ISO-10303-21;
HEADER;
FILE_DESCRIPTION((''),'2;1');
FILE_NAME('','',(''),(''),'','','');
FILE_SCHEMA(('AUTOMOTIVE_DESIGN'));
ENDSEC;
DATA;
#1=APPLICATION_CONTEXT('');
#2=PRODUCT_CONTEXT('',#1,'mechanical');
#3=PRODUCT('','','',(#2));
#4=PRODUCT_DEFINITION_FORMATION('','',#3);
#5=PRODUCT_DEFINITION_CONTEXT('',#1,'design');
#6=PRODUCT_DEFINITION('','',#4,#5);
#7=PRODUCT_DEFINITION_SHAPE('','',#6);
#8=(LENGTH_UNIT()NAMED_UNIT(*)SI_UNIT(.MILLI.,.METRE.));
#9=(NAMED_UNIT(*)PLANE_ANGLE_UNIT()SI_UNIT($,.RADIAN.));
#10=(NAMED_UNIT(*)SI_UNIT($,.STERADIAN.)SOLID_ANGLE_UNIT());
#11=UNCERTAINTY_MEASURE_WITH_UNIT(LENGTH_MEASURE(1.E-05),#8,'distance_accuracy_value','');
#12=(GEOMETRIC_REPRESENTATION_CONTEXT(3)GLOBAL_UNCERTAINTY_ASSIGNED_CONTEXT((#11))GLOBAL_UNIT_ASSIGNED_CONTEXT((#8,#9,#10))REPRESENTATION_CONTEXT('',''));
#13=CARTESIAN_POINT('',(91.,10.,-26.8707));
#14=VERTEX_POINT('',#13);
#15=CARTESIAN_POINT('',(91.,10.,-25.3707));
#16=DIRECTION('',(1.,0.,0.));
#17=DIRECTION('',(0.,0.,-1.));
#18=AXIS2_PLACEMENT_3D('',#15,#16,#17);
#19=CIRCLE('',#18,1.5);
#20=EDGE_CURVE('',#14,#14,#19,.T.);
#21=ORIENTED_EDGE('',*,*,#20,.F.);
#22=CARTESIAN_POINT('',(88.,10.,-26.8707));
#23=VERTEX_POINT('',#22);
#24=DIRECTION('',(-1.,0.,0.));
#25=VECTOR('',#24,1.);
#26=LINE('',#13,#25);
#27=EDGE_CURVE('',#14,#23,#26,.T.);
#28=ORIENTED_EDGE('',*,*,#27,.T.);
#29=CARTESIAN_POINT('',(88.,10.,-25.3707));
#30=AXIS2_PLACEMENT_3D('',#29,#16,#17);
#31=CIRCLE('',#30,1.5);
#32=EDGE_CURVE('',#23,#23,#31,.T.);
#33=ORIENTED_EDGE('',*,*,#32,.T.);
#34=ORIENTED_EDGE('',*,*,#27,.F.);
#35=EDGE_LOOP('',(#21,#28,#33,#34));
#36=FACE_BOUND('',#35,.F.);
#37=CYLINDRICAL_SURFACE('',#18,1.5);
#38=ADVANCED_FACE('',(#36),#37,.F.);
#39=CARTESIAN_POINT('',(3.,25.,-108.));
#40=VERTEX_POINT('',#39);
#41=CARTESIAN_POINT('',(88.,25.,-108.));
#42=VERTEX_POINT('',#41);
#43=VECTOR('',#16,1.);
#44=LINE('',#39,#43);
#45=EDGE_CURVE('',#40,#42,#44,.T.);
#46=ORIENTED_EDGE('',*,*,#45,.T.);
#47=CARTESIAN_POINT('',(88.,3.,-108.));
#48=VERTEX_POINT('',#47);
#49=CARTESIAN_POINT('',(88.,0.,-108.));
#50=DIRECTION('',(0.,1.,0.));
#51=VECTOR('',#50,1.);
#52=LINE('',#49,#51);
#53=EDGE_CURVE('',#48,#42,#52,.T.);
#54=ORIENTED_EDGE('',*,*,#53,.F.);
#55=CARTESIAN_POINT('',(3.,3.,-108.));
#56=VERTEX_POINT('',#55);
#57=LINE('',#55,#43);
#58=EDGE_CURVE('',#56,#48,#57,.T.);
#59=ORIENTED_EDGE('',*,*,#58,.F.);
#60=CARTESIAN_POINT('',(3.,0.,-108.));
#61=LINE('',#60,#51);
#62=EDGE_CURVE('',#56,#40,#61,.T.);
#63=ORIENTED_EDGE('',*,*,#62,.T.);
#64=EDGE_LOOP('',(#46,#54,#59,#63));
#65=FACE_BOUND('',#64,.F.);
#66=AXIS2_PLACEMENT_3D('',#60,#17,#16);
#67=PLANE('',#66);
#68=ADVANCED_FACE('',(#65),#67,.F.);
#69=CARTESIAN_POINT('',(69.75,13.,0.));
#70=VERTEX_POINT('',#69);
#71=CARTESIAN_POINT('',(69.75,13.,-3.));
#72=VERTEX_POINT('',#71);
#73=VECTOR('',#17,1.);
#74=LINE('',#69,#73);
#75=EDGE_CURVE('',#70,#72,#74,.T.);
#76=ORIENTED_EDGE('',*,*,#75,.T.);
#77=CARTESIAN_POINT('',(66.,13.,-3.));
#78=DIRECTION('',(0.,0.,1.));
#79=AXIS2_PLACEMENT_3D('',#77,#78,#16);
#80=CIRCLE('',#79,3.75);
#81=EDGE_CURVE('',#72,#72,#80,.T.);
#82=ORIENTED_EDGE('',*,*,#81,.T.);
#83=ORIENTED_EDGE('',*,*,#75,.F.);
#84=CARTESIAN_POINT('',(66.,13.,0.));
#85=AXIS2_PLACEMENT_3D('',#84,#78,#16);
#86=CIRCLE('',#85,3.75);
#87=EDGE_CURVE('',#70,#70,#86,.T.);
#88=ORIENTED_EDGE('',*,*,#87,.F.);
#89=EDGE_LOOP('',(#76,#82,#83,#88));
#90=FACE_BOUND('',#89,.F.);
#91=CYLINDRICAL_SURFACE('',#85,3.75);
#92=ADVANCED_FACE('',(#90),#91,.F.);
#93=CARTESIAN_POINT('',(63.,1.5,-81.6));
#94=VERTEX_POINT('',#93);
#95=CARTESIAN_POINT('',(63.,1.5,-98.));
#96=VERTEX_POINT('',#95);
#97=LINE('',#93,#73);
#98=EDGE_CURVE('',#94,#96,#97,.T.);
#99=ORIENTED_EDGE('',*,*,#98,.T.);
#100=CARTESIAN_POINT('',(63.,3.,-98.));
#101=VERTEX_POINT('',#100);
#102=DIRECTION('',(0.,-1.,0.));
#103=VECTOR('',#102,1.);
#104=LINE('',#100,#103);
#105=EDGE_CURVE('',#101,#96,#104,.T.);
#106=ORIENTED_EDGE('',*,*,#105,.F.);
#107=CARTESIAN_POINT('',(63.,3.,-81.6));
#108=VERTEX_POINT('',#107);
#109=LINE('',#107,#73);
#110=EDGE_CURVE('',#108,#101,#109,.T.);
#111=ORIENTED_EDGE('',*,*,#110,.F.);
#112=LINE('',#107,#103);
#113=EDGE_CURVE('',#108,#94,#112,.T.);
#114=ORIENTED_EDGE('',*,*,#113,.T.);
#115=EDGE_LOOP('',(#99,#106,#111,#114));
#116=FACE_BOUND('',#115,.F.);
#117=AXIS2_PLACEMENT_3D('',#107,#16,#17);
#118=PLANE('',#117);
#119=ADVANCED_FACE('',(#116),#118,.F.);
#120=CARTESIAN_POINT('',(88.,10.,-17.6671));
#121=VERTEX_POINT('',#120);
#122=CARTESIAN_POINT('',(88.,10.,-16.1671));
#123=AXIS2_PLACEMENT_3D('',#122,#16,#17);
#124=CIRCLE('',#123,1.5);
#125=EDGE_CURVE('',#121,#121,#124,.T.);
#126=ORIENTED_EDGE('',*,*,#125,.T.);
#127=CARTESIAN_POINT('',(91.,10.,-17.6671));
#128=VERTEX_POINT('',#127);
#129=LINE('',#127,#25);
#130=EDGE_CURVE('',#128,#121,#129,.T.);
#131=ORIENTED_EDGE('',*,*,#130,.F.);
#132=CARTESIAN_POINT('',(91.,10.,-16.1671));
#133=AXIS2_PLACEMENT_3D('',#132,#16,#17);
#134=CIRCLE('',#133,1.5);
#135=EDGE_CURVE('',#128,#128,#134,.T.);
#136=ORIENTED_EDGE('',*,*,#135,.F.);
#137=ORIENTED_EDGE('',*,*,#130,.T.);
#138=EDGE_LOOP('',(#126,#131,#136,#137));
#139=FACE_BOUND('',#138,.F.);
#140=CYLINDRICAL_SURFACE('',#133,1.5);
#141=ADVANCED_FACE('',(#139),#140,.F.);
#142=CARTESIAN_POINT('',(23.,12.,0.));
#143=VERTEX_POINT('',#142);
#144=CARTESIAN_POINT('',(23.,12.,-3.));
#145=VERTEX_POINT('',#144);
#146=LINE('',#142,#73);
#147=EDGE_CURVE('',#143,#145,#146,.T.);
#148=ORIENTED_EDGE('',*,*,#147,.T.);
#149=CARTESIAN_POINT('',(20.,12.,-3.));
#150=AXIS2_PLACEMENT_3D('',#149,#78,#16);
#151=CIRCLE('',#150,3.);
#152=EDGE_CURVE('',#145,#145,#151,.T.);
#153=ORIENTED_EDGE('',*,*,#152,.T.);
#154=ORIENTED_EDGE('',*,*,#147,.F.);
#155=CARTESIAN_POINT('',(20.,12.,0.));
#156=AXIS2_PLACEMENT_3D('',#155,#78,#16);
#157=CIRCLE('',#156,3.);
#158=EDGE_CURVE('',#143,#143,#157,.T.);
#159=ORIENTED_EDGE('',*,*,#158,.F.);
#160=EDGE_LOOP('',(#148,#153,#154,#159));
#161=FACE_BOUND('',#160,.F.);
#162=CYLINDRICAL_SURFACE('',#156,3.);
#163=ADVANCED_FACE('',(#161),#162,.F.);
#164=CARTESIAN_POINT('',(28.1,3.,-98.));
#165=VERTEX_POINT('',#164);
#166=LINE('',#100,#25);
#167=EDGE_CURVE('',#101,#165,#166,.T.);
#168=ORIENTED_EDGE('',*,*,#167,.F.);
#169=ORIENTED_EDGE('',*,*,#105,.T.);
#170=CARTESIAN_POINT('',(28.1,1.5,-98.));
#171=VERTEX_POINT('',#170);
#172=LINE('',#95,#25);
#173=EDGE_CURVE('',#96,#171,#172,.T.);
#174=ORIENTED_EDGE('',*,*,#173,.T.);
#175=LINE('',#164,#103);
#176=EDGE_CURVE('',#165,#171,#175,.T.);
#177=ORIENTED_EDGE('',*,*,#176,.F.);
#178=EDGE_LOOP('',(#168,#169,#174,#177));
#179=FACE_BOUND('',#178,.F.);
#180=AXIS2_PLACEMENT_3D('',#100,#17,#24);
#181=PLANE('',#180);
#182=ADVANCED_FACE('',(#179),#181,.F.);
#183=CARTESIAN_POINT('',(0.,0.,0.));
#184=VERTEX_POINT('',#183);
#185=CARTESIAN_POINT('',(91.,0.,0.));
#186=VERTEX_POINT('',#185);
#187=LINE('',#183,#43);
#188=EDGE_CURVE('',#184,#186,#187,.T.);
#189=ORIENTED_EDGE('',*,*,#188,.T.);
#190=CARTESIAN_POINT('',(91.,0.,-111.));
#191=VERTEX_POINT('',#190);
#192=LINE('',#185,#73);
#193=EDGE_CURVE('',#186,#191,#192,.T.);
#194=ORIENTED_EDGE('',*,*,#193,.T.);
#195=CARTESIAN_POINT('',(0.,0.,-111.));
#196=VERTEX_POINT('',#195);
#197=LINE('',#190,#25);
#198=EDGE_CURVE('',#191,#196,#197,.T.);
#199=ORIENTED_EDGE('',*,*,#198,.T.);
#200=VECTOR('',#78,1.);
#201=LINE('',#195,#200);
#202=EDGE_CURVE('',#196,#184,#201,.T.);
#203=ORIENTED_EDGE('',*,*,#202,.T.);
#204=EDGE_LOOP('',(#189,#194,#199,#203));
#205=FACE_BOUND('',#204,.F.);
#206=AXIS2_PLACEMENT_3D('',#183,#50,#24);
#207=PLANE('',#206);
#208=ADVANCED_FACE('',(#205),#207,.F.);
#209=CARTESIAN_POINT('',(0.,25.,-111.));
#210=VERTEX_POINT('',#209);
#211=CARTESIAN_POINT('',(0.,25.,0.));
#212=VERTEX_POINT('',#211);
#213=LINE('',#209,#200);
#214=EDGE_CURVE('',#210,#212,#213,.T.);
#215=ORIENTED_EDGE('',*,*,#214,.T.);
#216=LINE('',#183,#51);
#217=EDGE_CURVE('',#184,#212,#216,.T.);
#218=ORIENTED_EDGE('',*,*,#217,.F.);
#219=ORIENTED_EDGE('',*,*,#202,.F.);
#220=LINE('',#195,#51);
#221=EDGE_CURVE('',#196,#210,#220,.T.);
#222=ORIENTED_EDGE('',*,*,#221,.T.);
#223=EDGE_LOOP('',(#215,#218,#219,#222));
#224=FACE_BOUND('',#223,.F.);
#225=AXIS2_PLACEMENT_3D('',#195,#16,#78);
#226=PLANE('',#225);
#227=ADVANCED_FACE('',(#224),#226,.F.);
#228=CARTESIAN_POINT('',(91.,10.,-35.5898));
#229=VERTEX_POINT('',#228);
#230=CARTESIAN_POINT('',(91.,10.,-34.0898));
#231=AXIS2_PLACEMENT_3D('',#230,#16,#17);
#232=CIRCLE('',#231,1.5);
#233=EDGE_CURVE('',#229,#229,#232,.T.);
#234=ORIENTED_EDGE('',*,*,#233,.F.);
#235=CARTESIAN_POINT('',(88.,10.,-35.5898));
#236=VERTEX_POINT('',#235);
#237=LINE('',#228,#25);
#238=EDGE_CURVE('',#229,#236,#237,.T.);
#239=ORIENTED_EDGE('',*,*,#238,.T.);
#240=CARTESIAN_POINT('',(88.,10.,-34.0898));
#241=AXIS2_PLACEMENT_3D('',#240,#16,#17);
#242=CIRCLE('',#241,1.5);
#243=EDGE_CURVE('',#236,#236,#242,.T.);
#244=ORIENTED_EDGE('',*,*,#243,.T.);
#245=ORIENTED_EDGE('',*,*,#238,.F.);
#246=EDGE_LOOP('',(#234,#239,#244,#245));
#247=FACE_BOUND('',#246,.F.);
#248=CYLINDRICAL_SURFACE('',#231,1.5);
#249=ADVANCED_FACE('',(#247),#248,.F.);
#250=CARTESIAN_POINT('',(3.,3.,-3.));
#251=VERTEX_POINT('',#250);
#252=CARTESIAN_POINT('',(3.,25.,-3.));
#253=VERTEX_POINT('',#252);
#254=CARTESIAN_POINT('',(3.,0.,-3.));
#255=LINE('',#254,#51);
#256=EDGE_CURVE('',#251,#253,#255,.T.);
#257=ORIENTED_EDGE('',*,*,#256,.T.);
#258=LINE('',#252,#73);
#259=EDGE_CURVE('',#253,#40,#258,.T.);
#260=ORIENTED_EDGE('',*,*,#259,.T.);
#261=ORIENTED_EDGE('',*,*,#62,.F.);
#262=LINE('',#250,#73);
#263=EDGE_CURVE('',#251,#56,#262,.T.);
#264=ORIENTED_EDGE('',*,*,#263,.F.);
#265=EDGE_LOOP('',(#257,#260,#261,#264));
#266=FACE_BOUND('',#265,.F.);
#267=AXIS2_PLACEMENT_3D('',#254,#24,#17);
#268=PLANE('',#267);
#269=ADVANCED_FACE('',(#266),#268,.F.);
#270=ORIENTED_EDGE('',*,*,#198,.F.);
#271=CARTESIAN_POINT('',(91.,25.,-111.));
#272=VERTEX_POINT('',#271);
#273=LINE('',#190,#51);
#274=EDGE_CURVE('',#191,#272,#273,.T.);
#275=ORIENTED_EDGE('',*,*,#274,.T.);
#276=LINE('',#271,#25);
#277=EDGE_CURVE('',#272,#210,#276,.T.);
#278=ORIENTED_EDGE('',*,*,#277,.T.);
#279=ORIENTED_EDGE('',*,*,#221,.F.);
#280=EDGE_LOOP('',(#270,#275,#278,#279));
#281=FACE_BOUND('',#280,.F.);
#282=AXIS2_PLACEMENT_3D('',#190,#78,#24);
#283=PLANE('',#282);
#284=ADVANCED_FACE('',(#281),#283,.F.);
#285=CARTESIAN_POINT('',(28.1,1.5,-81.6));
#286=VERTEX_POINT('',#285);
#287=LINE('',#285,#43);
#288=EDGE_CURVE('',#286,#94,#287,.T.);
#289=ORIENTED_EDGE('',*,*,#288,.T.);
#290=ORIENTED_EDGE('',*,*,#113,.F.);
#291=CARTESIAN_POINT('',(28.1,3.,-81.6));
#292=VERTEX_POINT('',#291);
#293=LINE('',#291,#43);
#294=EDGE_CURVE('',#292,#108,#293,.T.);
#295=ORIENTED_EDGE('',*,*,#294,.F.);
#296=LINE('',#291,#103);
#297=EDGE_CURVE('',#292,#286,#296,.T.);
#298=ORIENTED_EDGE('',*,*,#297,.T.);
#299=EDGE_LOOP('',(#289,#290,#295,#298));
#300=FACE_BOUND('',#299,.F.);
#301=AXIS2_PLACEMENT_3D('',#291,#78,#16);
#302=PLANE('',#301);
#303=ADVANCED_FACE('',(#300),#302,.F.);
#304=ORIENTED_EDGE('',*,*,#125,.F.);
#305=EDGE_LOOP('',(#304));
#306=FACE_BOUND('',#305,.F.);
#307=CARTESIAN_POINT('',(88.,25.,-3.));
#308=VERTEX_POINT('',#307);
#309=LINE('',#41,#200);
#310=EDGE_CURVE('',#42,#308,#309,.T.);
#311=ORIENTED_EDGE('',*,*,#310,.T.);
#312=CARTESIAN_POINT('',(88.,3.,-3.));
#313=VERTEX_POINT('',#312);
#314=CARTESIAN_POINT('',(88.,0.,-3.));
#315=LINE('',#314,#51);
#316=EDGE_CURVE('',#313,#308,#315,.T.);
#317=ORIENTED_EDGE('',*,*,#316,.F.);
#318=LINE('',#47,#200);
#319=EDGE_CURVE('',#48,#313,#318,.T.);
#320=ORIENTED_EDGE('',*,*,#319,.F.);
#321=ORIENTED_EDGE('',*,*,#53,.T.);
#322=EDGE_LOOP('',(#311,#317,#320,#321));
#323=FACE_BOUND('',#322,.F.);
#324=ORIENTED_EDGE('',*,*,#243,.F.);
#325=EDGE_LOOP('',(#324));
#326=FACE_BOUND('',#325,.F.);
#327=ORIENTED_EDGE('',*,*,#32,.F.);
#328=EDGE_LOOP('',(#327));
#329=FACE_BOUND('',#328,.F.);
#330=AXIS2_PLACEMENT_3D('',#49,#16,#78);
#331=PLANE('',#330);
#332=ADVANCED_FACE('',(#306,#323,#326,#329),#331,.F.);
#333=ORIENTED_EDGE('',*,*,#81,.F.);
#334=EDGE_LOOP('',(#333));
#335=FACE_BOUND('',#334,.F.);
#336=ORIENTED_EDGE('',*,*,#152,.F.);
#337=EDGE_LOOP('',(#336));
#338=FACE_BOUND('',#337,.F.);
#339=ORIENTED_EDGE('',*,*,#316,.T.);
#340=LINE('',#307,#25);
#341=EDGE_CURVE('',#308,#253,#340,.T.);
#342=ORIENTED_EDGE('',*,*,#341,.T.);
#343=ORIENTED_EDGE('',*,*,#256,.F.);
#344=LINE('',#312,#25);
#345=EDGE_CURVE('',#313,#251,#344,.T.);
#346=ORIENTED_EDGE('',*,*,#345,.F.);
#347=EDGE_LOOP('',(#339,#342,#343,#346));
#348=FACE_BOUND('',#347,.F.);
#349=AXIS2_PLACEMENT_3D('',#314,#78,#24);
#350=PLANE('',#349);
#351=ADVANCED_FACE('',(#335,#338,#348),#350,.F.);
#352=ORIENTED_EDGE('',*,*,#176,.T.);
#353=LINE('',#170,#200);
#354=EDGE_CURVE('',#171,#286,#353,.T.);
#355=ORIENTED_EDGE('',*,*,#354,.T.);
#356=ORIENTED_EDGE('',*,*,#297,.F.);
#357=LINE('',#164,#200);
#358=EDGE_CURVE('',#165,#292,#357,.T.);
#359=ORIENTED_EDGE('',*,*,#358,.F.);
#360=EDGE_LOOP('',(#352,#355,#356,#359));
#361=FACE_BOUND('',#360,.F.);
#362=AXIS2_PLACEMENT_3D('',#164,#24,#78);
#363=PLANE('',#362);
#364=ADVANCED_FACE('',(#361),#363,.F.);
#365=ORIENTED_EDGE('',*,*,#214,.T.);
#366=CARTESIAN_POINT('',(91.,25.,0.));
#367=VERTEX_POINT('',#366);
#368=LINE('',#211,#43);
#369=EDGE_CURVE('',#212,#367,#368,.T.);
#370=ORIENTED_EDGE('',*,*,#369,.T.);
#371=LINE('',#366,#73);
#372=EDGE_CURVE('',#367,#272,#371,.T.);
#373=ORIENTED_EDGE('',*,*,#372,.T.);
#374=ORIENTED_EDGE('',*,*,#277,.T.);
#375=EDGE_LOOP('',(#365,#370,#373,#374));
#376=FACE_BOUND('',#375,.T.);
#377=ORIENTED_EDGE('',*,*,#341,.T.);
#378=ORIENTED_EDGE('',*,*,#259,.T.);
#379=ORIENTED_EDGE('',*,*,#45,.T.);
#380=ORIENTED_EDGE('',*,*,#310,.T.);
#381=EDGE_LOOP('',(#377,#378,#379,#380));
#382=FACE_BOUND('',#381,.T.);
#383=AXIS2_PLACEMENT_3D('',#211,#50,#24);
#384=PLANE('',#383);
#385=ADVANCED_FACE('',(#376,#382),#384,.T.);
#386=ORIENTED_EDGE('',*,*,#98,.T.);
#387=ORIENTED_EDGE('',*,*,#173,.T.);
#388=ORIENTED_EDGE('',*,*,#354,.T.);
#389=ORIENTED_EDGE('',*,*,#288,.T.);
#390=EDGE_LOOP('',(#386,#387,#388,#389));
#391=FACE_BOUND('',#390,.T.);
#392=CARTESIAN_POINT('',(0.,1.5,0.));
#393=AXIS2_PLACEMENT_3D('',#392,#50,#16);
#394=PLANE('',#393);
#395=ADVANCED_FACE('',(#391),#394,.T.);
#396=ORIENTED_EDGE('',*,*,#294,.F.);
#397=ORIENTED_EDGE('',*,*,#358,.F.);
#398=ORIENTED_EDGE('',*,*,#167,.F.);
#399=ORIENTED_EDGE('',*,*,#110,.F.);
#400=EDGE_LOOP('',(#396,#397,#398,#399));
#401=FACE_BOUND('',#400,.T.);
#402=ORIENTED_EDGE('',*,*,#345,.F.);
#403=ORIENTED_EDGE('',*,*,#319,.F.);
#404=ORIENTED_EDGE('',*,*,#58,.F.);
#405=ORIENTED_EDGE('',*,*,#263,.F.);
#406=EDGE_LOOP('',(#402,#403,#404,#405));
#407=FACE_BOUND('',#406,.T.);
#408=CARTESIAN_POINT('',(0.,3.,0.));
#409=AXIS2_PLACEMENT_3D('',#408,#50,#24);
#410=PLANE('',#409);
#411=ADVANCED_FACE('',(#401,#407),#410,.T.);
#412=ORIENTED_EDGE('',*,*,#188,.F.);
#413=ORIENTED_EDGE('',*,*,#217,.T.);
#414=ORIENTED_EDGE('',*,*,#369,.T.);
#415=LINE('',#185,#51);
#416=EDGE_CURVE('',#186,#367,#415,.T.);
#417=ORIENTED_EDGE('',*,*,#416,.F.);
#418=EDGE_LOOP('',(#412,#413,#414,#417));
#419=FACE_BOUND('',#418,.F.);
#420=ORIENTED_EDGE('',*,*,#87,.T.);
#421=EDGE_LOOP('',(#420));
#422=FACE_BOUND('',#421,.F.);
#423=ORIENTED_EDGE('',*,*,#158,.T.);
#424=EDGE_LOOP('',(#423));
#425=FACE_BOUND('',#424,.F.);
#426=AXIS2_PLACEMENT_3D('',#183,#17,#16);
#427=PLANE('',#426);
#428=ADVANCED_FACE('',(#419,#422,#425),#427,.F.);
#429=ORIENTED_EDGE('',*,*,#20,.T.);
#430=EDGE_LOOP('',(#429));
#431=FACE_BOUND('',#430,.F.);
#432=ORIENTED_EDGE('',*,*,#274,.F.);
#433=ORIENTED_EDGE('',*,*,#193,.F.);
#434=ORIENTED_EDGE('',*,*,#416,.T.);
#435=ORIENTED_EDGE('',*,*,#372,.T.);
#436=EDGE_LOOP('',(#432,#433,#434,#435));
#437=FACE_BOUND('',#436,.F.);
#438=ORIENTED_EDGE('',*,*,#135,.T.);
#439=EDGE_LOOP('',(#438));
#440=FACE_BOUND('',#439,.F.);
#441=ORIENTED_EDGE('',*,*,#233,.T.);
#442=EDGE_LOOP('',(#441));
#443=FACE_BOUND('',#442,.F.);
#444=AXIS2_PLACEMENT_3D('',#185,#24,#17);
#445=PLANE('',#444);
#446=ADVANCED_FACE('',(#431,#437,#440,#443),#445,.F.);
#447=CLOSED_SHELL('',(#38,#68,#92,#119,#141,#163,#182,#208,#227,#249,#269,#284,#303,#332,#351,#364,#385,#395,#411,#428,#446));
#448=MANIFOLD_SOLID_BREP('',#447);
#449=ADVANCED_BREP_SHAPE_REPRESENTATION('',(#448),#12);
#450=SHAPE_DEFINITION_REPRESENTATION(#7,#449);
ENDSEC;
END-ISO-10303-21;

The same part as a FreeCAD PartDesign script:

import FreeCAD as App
import Part
import Sketcher

V = App.Vector


def add_polygon(sketch, points):
    """Adds a closed chain of lines whose ends are joined by coincident constraints."""
    first, n = sketch.GeometryCount, len(points)
    for a, b in zip(points, points[1:] + points[:1]):
        sketch.addGeometry(Part.LineSegment(App.Vector(*a, 0), App.Vector(*b, 0)), False)
    for i in range(n):
        sketch.addConstraint(Sketcher.Constraint("Coincident", first + i, 2, first + (i + 1) % n, 1))

doc = App.newDocument("Part")
body = doc.addObject("PartDesign::Body", "Body")

# Sketch on XZ plane
sketch1 = body.newObject("Sketcher::SketchObject", "Sketch")
sketch1.AttachmentSupport = (doc.getObject("XZ_Plane"), [""])
sketch1.MapMode = "FlatFace"
add_polygon(sketch1, [(88, -108), (3, -108), (3, -3), (88, -3)])  # lines 0-3
sketch1.addConstraint(Sketcher.Constraint("Horizontal", 0))
sketch1.addConstraint(Sketcher.Constraint("Vertical", 1))
sketch1.addConstraint(Sketcher.Constraint("Horizontal", 2))
sketch1.addConstraint(Sketcher.Constraint("Vertical", 3))
sketch1.addConstraint(Sketcher.Constraint("DistanceX", 0, 2, 0, 1, 85.0))
sketch1.addConstraint(Sketcher.Constraint("DistanceY", 1, 1, 1, 2, 105.0))
sketch1.addConstraint(Sketcher.Constraint("DistanceX", -1, 1, 0, 2, 3.0))
sketch1.addConstraint(Sketcher.Constraint("DistanceY", 1, 2, -1, 1, 3.0))
pad1 = body.newObject("PartDesign::Pad", "Pad")
pad1.Profile = sketch1
pad1.Length = 3
pad1.Reversed = True

# Sketch on XZ plane
sketch2 = body.newObject("Sketcher::SketchObject", "Sketch001")
sketch2.AttachmentSupport = (doc.getObject("XZ_Plane"), [""])
sketch2.MapMode = "FlatFace"
add_polygon(sketch2, [(0, -111), (0, 0), (91, 0), (91, -111)])  # lines 0-3
add_polygon(sketch2, [(3, -3), (3, -108), (88, -108), (88, -3)])  # lines 4-7
sketch2.addConstraint(Sketcher.Constraint("Vertical", 0))
sketch2.addConstraint(Sketcher.Constraint("Horizontal", 1))
sketch2.addConstraint(Sketcher.Constraint("Vertical", 2))
sketch2.addConstraint(Sketcher.Constraint("Horizontal", 3))
sketch2.addConstraint(Sketcher.Constraint("Vertical", 4))
sketch2.addConstraint(Sketcher.Constraint("Horizontal", 5))
sketch2.addConstraint(Sketcher.Constraint("Vertical", 6))
sketch2.addConstraint(Sketcher.Constraint("Horizontal", 7))
sketch2.addConstraint(Sketcher.Constraint("Coincident", 0, 2, -1, 1))
sketch2.addConstraint(Sketcher.Constraint("DistanceX", 5, 1, 5, 2, 85.0))
sketch2.addConstraint(Sketcher.Constraint("DistanceY", 4, 2, 4, 1, 105.0))
sketch2.addConstraint(Sketcher.Constraint("DistanceX", -1, 1, 4, 2, 3.0))
sketch2.addConstraint(Sketcher.Constraint("DistanceY", 6, 2, -1, 1, 3.0))
sketch2.addConstraint(Sketcher.Constraint("DistanceY", 3, 2, 4, 2, 3.0))
sketch2.addConstraint(Sketcher.Constraint("DistanceX", 5, 2, 2, 2, 3.0))
pad2 = body.newObject("PartDesign::Pad", "Pad001")
pad2.Profile = sketch2
pad2.Length = 25
pad2.Reversed = True

# Sketch on XY plane
sketch3 = body.newObject("Sketcher::SketchObject", "Sketch002")
sketch3.AttachmentSupport = (doc.getObject("XY_Plane"), [""])
sketch3.MapMode = "FlatFace"
sketch3.addGeometry(Part.Circle(V(20, 12, 0), V(0, 0, 1), 3), False)
sketch3.addGeometry(Part.Circle(V(66, 13, 0), V(0, 0, 1), 3.8), False)
sketch3.addConstraint(Sketcher.Constraint("Diameter", 0, 6.0))
sketch3.addConstraint(Sketcher.Constraint("Diameter", 1, 7.5))
sketch3.addConstraint(Sketcher.Constraint("DistanceX", -1, 1, 0, 3, 20.0))
sketch3.addConstraint(Sketcher.Constraint("DistanceY", -1, 1, 0, 3, 12.0))
sketch3.addConstraint(Sketcher.Constraint("DistanceY", -1, 1, 1, 3, 13.0))
sketch3.addConstraint(Sketcher.Constraint("DistanceX", -1, 1, 1, 3, 66.0))
pocket1 = body.newObject("PartDesign::Pocket", "Pocket")
pocket1.Profile = sketch3
pocket1.Length = 30

# Sketch on YZ plane
sketch4 = body.newObject("Sketcher::SketchObject", "Sketch003")
sketch4.AttachmentSupport = (doc.getObject("YZ_Plane"), [""])
sketch4.MapMode = "FlatFace"
sketch4.AttachmentOffset = App.Placement(V(0, 0, 91), App.Rotation())
sketch4.addGeometry(Part.Circle(V(10, -16.2, 0), V(0, 0, 1), 1.5), False)
sketch4.addGeometry(Part.Circle(V(10, -34.1, 0), V(0, 0, 1), 1.5), False)
sketch4.addGeometry(Part.Circle(V(10, -25.4, 0), V(0, 0, 1), 1.5), False)
sketch4.addConstraint(Sketcher.Constraint("Equal", 0, 1))
sketch4.addConstraint(Sketcher.Constraint("Equal", 1, 2))
sketch4.addConstraint(Sketcher.Constraint("Vertical", 0, 3, 1, 3))
sketch4.addConstraint(Sketcher.Constraint("Vertical", 1, 3, 2, 3))
sketch4.addConstraint(Sketcher.Constraint("Diameter", 0, 3.0))
sketch4.addConstraint(Sketcher.Constraint("DistanceX", -1, 1, 0, 3, 10.0))
sketch4.addConstraint(Sketcher.Constraint("DistanceY", 0, 3, -1, 1, 16.167))
sketch4.addConstraint(Sketcher.Constraint("DistanceY", 1, 3, 2, 3, 8.719))
sketch4.addConstraint(Sketcher.Constraint("DistanceY", 1, 3, -1, 1, 34.0898))
pocket2 = body.newObject("PartDesign::Pocket", "Pocket001")
pocket2.Profile = sketch4
pocket2.Length = 10

# Sketch on XZ plane
sketch5 = body.newObject("Sketcher::SketchObject", "Sketch004")
sketch5.AttachmentSupport = (doc.getObject("XZ_Plane"), [""])
sketch5.MapMode = "FlatFace"
sketch5.AttachmentOffset = App.Placement(V(0, 0, -3), App.Rotation())
add_polygon(sketch5, [(28, -98), (28, -82), (63, -82), (63, -98)])  # lines 0-3
sketch5.addConstraint(Sketcher.Constraint("Vertical", 0))
sketch5.addConstraint(Sketcher.Constraint("Horizontal", 1))
sketch5.addConstraint(Sketcher.Constraint("Vertical", 2))
sketch5.addConstraint(Sketcher.Constraint("Horizontal", 3))
sketch5.addConstraint(Sketcher.Constraint("DistanceX", 1, 1, 1, 2, 34.9))
sketch5.addConstraint(Sketcher.Constraint("DistanceY", 0, 1, 0, 2, 16.4))
sketch5.addConstraint(Sketcher.Constraint("DistanceX", -1, 1, 1, 2, 63.0))
sketch5.addConstraint(Sketcher.Constraint("DistanceY", 2, 2, -1, 1, 98.0))
pocket3 = body.newObject("PartDesign::Pocket", "Pocket002")
pocket3.Profile = sketch5
pocket3.Length = 1.5
pocket3.Reversed = True

doc.recompute()
